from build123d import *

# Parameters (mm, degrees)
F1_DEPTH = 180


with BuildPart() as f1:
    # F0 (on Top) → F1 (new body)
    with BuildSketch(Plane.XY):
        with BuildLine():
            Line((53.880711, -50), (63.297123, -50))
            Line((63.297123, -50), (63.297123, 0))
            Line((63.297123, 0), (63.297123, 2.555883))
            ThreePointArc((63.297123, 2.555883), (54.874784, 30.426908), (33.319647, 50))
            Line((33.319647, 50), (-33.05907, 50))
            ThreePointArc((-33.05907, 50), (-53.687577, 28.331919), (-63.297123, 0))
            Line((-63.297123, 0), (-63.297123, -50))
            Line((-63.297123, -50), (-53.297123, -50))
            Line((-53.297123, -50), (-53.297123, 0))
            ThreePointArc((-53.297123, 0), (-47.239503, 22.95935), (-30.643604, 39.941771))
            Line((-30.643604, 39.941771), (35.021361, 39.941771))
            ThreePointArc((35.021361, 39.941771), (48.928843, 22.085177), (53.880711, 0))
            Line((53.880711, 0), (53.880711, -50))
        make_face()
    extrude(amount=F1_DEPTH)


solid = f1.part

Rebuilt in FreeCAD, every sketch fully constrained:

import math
import FreeCAD as App
import Part
import Sketcher

V = App.Vector

doc = App.newDocument("Part")
body = doc.addObject("PartDesign::Body", "Body")

# Sketch on XY plane
sketch1 = doc.addObject("Sketcher::SketchObject", "Sketch")
body.addObject(sketch1)
sketch1.AttachmentSupport = (doc.XY_Plane, [""])
sketch1.MapMode = "FlatFace"
sketch1.addGeometry(Part.LineSegment(V(54, -50, 0), V(63, -50, 0)), False)
sketch1.addGeometry(Part.LineSegment(V(63, -50, 0), V(63, 3, 0)), False)
sketch1.addGeometry(Part.ArcOfCircle(Part.Circle(V(9, 1, 0), V(0, 0, 1), 55), math.radians(1), math.radians(63)), False)
sketch1.addGeometry(Part.LineSegment(V(33, 50, 0), V(-33, 50, 0)), False)
sketch1.addGeometry(Part.ArcOfCircle(Part.Circle(V(6, -8, 0), V(0, 0, 1), 70), math.radians(124), math.radians(174)), False)
sketch1.addGeometry(Part.LineSegment(V(-63, 0, 0), V(-63, -50, 0)), False)
sketch1.addGeometry(Part.LineSegment(V(-63, -50, 0), V(-53, -50, 0)), False)
sketch1.addGeometry(Part.LineSegment(V(-53, -50, 0), V(-53, 0, 0)), False)
sketch1.addGeometry(Part.ArcOfCircle(Part.Circle(V(-7, 0, 0), V(0, 0, 1), 47), math.radians(121), math.radians(180)), False)
sketch1.addGeometry(Part.LineSegment(V(-31, 40, 0), V(35, 40, 0)), False)
sketch1.addGeometry(Part.ArcOfCircle(Part.Circle(V(2, 0, 0), V(0, 0, 1), 52), math.radians(0), math.radians(51)), False)
sketch1.addGeometry(Part.LineSegment(V(54, 0, 0), V(54, -50, 0)), False)
sketch1.addConstraint(Sketcher.Constraint("Coincident", 0, 2, 1, 1))
sketch1.addConstraint(Sketcher.Constraint("Coincident", 1, 2, 2, 1))
sketch1.addConstraint(Sketcher.Constraint("Coincident", 2, 2, 3, 1))
sketch1.addConstraint(Sketcher.Constraint("Coincident", 3, 2, 4, 1))
sketch1.addConstraint(Sketcher.Constraint("Coincident", 4, 2, 5, 1))
sketch1.addConstraint(Sketcher.Constraint("Coincident", 5, 2, 6, 1))
sketch1.addConstraint(Sketcher.Constraint("Coincident", 6, 2, 7, 1))
sketch1.addConstraint(Sketcher.Constraint("Tangent", 7, 2, 8, 2))
sketch1.addConstraint(Sketcher.Constraint("Coincident", 8, 1, 9, 1))
sketch1.addConstraint(Sketcher.Constraint("Coincident", 9, 2, 10, 2))
sketch1.addConstraint(Sketcher.Constraint("Tangent", 10, 1, 11, 1))
sketch1.addConstraint(Sketcher.Constraint("Coincident", 11, 2, 0, 1))
sketch1.addConstraint(Sketcher.Constraint("Horizontal", 0))
sketch1.addConstraint(Sketcher.Constraint("Vertical", 1))
sketch1.addConstraint(Sketcher.Constraint("Horizontal", 3))
sketch1.addConstraint(Sketcher.Constraint("Vertical", 5))
sketch1.addConstraint(Sketcher.Constraint("Horizontal", 6))
sketch1.addConstraint(Sketcher.Constraint("Vertical", 7))
sketch1.addConstraint(Sketcher.Constraint("Horizontal", 9))
sketch1.addConstraint(Sketcher.Constraint("Vertical", 11))
sketch1.addConstraint(Sketcher.Constraint("Symmetric", 0, 2, 5, 2, -2))
sketch1.addConstraint(Sketcher.Constraint("PointOnObject", 8, 3, -1))
sketch1.addConstraint(Sketcher.Constraint("PointOnObject", 4, 2, -1))
sketch1.addConstraint(Sketcher.Constraint("PointOnObject", 10, 1, -1))
sketch1.addConstraint(Sketcher.Constraint("DistanceX", 6, 1, 6, 2, 10.0))
sketch1.addConstraint(Sketcher.Constraint("DistanceY", 5, 2, 5, 1, 50.0))
sketch1.addConstraint(Sketcher.Constraint("DistanceY", -1, 1, 2, 2, 50.0))
sketch1.addConstraint(Sketcher.Constraint("Radius", 8, 46.538621))
sketch1.addConstraint(Sketcher.Constraint("Radius", 2, 54.570175))
sketch1.addConstraint(Sketcher.Constraint("Radius", 4, 69.505462))
sketch1.addConstraint(Sketcher.Constraint("Radius", 10, 51.725546))
sketch1.addConstraint(Sketcher.Constraint("DistanceX", 8, 3, -1, 1, 6.758502))
sketch1.addConstraint(Sketcher.Constraint("DistanceX", 4, 2, 4, 3, 69.084699))
sketch1.addConstraint(Sketcher.Constraint("DistanceX", 0, 1, 0, 2, 9.416412))
sketch1.addConstraint(Sketcher.Constraint("DistanceX", 3, 2, 3, 1, 66.378717))
sketch1.addConstraint(Sketcher.Constraint("DistanceX", 9, 1, 9, 2, 65.664965))
sketch1.addConstraint(Sketcher.Constraint("DistanceY", 1, 1, 1, 2, 52.555883))
pad1 = doc.addObject("PartDesign::Pad", "Pad")
body.addObject(pad1)
pad1.Profile = sketch1
pad1.Length = 180

doc.recompute()
